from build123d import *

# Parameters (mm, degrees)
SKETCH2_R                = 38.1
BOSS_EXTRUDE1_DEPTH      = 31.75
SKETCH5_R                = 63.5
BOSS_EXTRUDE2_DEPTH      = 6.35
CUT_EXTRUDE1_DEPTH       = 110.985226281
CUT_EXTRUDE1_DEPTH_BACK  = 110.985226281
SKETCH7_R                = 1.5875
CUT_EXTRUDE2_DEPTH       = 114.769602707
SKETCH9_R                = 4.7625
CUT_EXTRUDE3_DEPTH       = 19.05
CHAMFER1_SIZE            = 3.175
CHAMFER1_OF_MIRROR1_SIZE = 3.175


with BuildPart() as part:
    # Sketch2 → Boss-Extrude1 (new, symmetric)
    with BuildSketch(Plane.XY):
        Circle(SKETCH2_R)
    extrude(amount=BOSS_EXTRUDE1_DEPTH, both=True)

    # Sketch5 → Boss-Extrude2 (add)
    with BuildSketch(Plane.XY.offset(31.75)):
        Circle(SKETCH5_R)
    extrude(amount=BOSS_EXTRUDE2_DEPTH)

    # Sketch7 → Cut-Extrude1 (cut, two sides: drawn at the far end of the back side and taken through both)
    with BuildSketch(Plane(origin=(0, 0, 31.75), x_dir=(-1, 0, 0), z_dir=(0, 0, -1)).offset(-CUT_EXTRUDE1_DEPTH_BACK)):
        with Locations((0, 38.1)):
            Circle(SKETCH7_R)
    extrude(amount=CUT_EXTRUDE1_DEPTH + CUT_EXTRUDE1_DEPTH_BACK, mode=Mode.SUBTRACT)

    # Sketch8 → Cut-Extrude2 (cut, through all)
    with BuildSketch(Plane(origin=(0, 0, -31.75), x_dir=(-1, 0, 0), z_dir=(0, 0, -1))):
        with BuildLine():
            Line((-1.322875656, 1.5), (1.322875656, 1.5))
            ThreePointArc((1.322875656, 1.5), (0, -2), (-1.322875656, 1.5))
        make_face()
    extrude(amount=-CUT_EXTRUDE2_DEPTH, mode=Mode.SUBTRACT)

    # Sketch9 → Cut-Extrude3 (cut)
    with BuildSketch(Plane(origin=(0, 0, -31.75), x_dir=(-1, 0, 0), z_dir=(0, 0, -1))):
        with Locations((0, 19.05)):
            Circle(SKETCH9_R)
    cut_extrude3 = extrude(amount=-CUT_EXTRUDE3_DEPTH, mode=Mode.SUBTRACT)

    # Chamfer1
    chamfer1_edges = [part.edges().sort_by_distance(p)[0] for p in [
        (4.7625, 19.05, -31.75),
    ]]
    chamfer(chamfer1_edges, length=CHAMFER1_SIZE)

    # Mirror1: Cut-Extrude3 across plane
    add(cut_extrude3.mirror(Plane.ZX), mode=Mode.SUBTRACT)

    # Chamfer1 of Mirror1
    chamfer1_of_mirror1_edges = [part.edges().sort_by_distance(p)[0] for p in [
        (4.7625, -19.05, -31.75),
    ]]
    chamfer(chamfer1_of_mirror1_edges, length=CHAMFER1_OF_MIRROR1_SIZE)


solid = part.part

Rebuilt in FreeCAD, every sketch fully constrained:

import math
import FreeCAD as App
import Part
import Sketcher
from FreeCAD import Vector
Q = App.Units.Quantity


def edges_at(feature, points):
    """Names of the edges that pass closest to the given points."""
    edges = feature.Shape.Edges
    near = lambda p: min(range(len(edges)), key=lambda i: edges[i].distToShape(Part.Vertex(*p))[0])
    return sorted({f"Edge{near(p) + 1}" for p in points})

doc = App.newDocument("Part")
body = doc.addObject("PartDesign::Body", "Body")

# Sketch on XY plane
sketch1 = body.newObject("Sketcher::SketchObject", "Sketch")
sketch1.AttachmentSupport = (doc.getObject("XY_Plane"), [""])
sketch1.MapMode = "FlatFace"
sketch1.addGeometry(Part.Circle(Vector(0, 0, 0), Vector(0, 0, 1), 38.1), False)
sketch1.addConstraint([
    Sketcher.Constraint("Coincident", 0, 3, -1, 1),
    Sketcher.Constraint("Diameter", 0, Q("3 in")),
])
pad1 = body.newObject("PartDesign::Pad", "Pad")
pad1.Profile = sketch1
pad1.Length = Q("2.5 in")
pad1.Midplane = True

# Sketch on XY plane
sketch2 = body.newObject("Sketcher::SketchObject", "Sketch001")
sketch2.AttachmentSupport = (doc.getObject("XY_Plane"), [""])
sketch2.MapMode = "FlatFace"
sketch2.AttachmentOffset = App.Placement(Vector(0, 0, 1.25 * 25.4), App.Rotation())
sketch2.addGeometry(Part.Circle(Vector(0, 0, 0), Vector(0, 0, 1), 63.5), False)
sketch2.addConstraint([
    Sketcher.Constraint("Coincident", 0, 3, -1, 1),
    Sketcher.Constraint("Diameter", 0, Q("5 in")),
])
pad2 = body.newObject("PartDesign::Pad", "Pad001")
pad2.Profile = sketch2
pad2.Length = Q("0.25 in")

# Sketch on XY plane
sketch3 = body.newObject("Sketcher::SketchObject", "Sketch002")
sketch3.AttachmentSupport = (doc.getObject("XY_Plane"), [""])
sketch3.MapMode = "FlatFace"
sketch3.AttachmentOffset = App.Placement(Vector(0, 0, 1.25 * 25.4), App.Rotation())
sketch3.addGeometry(Part.Circle(Vector(0, 38.1, 0), Vector(0, 0, 1), 1.5875), False)
sketch3.addConstraint([
    Sketcher.Constraint("PointOnObject", 0, 3, -2),
    Sketcher.Constraint("Diameter", 0, Q("0.125 in")),
    Sketcher.Constraint("DistanceY", -1, 1, 0, 3, Q("1.5 in")),
])
pocket1 = body.newObject("PartDesign::Pocket", "Pocket")
pocket1.Profile = sketch3
pocket1.Type = "ThroughAll"
pocket1.Midplane = True

# Sketch on XY plane
sketch4 = body.newObject("Sketcher::SketchObject", "Sketch003")
sketch4.AttachmentSupport = (doc.getObject("XY_Plane"), [""])
sketch4.MapMode = "FlatFace"
sketch4.AttachmentOffset = App.Placement(Vector(0, 0, -1.25 * 25.4), App.Rotation())
sketch4.addGeometry([
    Part.LineSegment(Vector(-1.322876, 1.5, 0), Vector(1.322876, 1.5, 0)),
    Part.ArcOfCircle(Part.Circle(Vector(0, 0, 0), Vector(0, 0, 1), 2), math.radians(131.409622), math.radians(408.590378)),
], False)
sketch4.addConstraint([
    Sketcher.Constraint("Coincident", 0, 1, 1, 1),
    Sketcher.Constraint("Coincident", 1, 2, 0, 2),
    Sketcher.Constraint("Horizontal", 0),
    Sketcher.Constraint("Coincident", 1, 3, -1, 1),
    Sketcher.Constraint("Radius", 1, Q("2 mm")),
    Sketcher.Constraint("DistanceX", 0, 1, 0, 2, Q("2.645751 mm")),
])
pocket2 = body.newObject("PartDesign::Pocket", "Pocket001")
pocket2.Profile = sketch4
pocket2.Type = "ThroughAll"
pocket2.Reversed = True

# Sketch on XY plane
sketch5 = body.newObject("Sketcher::SketchObject", "Sketch004")
sketch5.AttachmentSupport = (doc.getObject("XY_Plane"), [""])
sketch5.MapMode = "FlatFace"
sketch5.AttachmentOffset = App.Placement(Vector(0, 0, -1.25 * 25.4), App.Rotation())
sketch5.addGeometry(Part.Circle(Vector(0, 19.05, 0), Vector(0, 0, 1), 4.7625), False)
sketch5.addConstraint([
    Sketcher.Constraint("PointOnObject", 0, 3, -2),
    Sketcher.Constraint("Diameter", 0, Q("0.375 in")),
    Sketcher.Constraint("DistanceY", -1, 1, 0, 3, Q("0.75 in")),
])
pocket3 = body.newObject("PartDesign::Pocket", "Pocket002")
pocket3.Profile = sketch5
pocket3.Length = Q("0.75 in")
pocket3.Reversed = True
doc.recompute()

chamfer = body.newObject("PartDesign::Chamfer", "Chamfer")
chamfer.Base = (pocket3, edges_at(pocket3, [(4.763, 19.05, -31.75)]))
chamfer.Size = Q("0.125 in")
doc.recompute()

mirrored = body.newObject("PartDesign::Mirrored", "Mirrored")
mirrored.Originals = [pocket3]
mirrored.MirrorPlane = (doc.getObject("XZ_Plane"), [""])
body.Tip = mirrored
doc.recompute()

chamfer2 = body.newObject("PartDesign::Chamfer", "Chamfer001")
chamfer2.Base = (mirrored, edges_at(mirrored, [(4.763, -19.05, -31.75)]))
chamfer2.Size = Q("0.125 in")

doc.recompute()
